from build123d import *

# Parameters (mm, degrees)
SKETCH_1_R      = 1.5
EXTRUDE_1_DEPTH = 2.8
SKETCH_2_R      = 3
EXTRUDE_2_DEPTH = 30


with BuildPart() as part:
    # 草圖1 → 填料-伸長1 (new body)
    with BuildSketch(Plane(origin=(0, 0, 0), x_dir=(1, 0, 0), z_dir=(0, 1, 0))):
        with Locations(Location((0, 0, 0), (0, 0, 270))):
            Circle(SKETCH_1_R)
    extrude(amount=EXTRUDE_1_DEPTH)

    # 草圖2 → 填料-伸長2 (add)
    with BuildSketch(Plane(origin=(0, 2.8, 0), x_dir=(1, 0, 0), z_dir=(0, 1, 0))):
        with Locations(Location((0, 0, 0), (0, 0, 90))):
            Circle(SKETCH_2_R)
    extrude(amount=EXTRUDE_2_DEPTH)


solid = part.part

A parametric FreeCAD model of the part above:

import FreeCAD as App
import Part
import Sketcher

V = App.Vector

doc = App.newDocument("Part")
params = doc.addObject("Spreadsheet::Sheet", "Params")
for row, (alias, value) in enumerate([
    ("sketch1_diameter", "3 mm"),
    ("pad1_length", "2.8 mm"),
    ("sketch2_diameter", "6 mm"),
    ("pad2_length", "30 mm"),
], start=1):
    params.set(f"A{row}", alias)
    params.set(f"B{row}", "=" + value)
    params.setAlias(f"B{row}", alias)

body = doc.addObject("PartDesign::Body", "Body")

sketch1 = body.newObject("Sketcher::SketchObject", "Sketch")
sketch1.AttachmentSupport = (doc.getObject("XZ_Plane"), [""])
sketch1.MapMode = "FlatFace"
sketch1.addGeometry(Part.Circle(V(0, 0, 0), V(0, 0, 1), 1.5), False)
sketch1.addConstraint([
    Sketcher.Constraint("Coincident", 0, 3, -1, 1),
    Sketcher.Constraint("Diameter", 0, 3.0),
])
sketch1.setExpression("Constraints[1]", "Params.sketch1_diameter")
pad1 = body.newObject("PartDesign::Pad", "Pad")
pad1.Profile = sketch1
pad1.setExpression("Length", "Params.pad1_length")
pad1.Reversed = True

sketch2 = body.newObject("Sketcher::SketchObject", "Sketch001")
sketch2.AttachmentSupport = (doc.getObject("XZ_Plane"), [""])
sketch2.MapMode = "FlatFace"
sketch2.AttachmentOffset = App.Placement(V(0, 0, -2.8), App.Rotation())
sketch2.addGeometry(Part.Circle(V(0, 0, 0), V(0, 0, 1), 3), False)
sketch2.addConstraint([
    Sketcher.Constraint("Coincident", 0, 3, -1, 1),
    Sketcher.Constraint("Diameter", 0, 6.0),
])
sketch2.setExpression("Constraints[1]", "Params.sketch2_diameter")
pad2 = body.newObject("PartDesign::Pad", "Pad001")
pad2.Profile = sketch2
pad2.setExpression("Length", "Params.pad2_length")
pad2.Reversed = True

doc.recompute()
